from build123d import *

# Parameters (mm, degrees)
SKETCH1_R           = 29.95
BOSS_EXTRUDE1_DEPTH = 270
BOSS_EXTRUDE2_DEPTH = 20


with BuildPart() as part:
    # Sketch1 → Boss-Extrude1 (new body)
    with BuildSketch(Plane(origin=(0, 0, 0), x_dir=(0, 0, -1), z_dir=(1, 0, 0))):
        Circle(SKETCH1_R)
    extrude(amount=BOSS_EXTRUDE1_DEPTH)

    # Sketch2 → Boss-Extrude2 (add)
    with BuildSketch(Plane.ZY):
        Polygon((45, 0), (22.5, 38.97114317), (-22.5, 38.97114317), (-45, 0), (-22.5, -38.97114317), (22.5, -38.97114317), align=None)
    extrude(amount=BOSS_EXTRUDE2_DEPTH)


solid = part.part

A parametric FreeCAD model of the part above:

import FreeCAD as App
import Part
import Sketcher

V = App.Vector
Q = App.Units.Quantity


def add_polygon(sketch, points):
    """Adds a closed chain of lines whose ends are joined by coincident constraints."""
    first, n = sketch.GeometryCount, len(points)
    for a, b in zip(points, points[1:] + points[:1]):
        sketch.addGeometry(Part.LineSegment(App.Vector(*a, 0), App.Vector(*b, 0)), False)
    for i in range(n):
        sketch.addConstraint(Sketcher.Constraint("Coincident", first + i, 2, first + (i + 1) % n, 1))

doc = App.newDocument("Part")
body = doc.addObject("PartDesign::Body", "Body")

# Sketch on YZ plane
sketch1 = doc.addObject("Sketcher::SketchObject", "Sketch")
body.addObject(sketch1)
sketch1.AttachmentSupport = (doc.YZ_Plane, [""])
sketch1.MapMode = "FlatFace"
sketch1.addGeometry(Part.Circle(V(0, 0, 0), V(0, 0, 1), 29.95), False)
sketch1.addConstraint(Sketcher.Constraint("Coincident", 0, 3, -1, 1))
sketch1.addConstraint(Sketcher.Constraint("Diameter", 0, Q("59.9 mm")))
pad1 = doc.addObject("PartDesign::Pad", "Pad")
body.addObject(pad1)
pad1.Profile = sketch1
pad1.Length = 270

# Sketch on YZ plane
sketch2 = doc.addObject("Sketcher::SketchObject", "Sketch001")
body.addObject(sketch2)
sketch2.AttachmentSupport = (doc.YZ_Plane, [""])
sketch2.MapMode = "FlatFace"
add_polygon(sketch2, [(0, 45), (38.971143, 22.5), (38.971143, -22.5), (0, -45), (-38.971143, -22.5), (-38.971143, 22.5)])  # lines 0-5
sketch2.addConstraint(Sketcher.Constraint("Vertical", 1))
sketch2.addConstraint(Sketcher.Constraint("Vertical", 4))
sketch2.addConstraint(Sketcher.Constraint("Symmetric", 0, 2, 3, 2, -1, 1))
sketch2.addConstraint(Sketcher.Constraint("Symmetric", 2, 2, 5, 2, -1, 1))
sketch2.addConstraint(Sketcher.Constraint("PointOnObject", 2, 2, -2))
sketch2.addConstraint(Sketcher.Constraint("Parallel", 2, 5))
sketch2.addConstraint(Sketcher.Constraint("Horizontal", 1, 2, 3, 2))
sketch2.addConstraint(Sketcher.Constraint("DistanceY", 1, 2, 1, 1, Q("45 mm")))
sketch2.addConstraint(Sketcher.Constraint("Angle", 0, Q("-30 deg")))
sketch2.addConstraint(Sketcher.Constraint("Distance", 0, Q("45 mm")))
pad2 = doc.addObject("PartDesign::Pad", "Pad001")
body.addObject(pad2)
pad2.Profile = sketch2
pad2.Length = 20
pad2.Reversed = True

doc.recompute()
